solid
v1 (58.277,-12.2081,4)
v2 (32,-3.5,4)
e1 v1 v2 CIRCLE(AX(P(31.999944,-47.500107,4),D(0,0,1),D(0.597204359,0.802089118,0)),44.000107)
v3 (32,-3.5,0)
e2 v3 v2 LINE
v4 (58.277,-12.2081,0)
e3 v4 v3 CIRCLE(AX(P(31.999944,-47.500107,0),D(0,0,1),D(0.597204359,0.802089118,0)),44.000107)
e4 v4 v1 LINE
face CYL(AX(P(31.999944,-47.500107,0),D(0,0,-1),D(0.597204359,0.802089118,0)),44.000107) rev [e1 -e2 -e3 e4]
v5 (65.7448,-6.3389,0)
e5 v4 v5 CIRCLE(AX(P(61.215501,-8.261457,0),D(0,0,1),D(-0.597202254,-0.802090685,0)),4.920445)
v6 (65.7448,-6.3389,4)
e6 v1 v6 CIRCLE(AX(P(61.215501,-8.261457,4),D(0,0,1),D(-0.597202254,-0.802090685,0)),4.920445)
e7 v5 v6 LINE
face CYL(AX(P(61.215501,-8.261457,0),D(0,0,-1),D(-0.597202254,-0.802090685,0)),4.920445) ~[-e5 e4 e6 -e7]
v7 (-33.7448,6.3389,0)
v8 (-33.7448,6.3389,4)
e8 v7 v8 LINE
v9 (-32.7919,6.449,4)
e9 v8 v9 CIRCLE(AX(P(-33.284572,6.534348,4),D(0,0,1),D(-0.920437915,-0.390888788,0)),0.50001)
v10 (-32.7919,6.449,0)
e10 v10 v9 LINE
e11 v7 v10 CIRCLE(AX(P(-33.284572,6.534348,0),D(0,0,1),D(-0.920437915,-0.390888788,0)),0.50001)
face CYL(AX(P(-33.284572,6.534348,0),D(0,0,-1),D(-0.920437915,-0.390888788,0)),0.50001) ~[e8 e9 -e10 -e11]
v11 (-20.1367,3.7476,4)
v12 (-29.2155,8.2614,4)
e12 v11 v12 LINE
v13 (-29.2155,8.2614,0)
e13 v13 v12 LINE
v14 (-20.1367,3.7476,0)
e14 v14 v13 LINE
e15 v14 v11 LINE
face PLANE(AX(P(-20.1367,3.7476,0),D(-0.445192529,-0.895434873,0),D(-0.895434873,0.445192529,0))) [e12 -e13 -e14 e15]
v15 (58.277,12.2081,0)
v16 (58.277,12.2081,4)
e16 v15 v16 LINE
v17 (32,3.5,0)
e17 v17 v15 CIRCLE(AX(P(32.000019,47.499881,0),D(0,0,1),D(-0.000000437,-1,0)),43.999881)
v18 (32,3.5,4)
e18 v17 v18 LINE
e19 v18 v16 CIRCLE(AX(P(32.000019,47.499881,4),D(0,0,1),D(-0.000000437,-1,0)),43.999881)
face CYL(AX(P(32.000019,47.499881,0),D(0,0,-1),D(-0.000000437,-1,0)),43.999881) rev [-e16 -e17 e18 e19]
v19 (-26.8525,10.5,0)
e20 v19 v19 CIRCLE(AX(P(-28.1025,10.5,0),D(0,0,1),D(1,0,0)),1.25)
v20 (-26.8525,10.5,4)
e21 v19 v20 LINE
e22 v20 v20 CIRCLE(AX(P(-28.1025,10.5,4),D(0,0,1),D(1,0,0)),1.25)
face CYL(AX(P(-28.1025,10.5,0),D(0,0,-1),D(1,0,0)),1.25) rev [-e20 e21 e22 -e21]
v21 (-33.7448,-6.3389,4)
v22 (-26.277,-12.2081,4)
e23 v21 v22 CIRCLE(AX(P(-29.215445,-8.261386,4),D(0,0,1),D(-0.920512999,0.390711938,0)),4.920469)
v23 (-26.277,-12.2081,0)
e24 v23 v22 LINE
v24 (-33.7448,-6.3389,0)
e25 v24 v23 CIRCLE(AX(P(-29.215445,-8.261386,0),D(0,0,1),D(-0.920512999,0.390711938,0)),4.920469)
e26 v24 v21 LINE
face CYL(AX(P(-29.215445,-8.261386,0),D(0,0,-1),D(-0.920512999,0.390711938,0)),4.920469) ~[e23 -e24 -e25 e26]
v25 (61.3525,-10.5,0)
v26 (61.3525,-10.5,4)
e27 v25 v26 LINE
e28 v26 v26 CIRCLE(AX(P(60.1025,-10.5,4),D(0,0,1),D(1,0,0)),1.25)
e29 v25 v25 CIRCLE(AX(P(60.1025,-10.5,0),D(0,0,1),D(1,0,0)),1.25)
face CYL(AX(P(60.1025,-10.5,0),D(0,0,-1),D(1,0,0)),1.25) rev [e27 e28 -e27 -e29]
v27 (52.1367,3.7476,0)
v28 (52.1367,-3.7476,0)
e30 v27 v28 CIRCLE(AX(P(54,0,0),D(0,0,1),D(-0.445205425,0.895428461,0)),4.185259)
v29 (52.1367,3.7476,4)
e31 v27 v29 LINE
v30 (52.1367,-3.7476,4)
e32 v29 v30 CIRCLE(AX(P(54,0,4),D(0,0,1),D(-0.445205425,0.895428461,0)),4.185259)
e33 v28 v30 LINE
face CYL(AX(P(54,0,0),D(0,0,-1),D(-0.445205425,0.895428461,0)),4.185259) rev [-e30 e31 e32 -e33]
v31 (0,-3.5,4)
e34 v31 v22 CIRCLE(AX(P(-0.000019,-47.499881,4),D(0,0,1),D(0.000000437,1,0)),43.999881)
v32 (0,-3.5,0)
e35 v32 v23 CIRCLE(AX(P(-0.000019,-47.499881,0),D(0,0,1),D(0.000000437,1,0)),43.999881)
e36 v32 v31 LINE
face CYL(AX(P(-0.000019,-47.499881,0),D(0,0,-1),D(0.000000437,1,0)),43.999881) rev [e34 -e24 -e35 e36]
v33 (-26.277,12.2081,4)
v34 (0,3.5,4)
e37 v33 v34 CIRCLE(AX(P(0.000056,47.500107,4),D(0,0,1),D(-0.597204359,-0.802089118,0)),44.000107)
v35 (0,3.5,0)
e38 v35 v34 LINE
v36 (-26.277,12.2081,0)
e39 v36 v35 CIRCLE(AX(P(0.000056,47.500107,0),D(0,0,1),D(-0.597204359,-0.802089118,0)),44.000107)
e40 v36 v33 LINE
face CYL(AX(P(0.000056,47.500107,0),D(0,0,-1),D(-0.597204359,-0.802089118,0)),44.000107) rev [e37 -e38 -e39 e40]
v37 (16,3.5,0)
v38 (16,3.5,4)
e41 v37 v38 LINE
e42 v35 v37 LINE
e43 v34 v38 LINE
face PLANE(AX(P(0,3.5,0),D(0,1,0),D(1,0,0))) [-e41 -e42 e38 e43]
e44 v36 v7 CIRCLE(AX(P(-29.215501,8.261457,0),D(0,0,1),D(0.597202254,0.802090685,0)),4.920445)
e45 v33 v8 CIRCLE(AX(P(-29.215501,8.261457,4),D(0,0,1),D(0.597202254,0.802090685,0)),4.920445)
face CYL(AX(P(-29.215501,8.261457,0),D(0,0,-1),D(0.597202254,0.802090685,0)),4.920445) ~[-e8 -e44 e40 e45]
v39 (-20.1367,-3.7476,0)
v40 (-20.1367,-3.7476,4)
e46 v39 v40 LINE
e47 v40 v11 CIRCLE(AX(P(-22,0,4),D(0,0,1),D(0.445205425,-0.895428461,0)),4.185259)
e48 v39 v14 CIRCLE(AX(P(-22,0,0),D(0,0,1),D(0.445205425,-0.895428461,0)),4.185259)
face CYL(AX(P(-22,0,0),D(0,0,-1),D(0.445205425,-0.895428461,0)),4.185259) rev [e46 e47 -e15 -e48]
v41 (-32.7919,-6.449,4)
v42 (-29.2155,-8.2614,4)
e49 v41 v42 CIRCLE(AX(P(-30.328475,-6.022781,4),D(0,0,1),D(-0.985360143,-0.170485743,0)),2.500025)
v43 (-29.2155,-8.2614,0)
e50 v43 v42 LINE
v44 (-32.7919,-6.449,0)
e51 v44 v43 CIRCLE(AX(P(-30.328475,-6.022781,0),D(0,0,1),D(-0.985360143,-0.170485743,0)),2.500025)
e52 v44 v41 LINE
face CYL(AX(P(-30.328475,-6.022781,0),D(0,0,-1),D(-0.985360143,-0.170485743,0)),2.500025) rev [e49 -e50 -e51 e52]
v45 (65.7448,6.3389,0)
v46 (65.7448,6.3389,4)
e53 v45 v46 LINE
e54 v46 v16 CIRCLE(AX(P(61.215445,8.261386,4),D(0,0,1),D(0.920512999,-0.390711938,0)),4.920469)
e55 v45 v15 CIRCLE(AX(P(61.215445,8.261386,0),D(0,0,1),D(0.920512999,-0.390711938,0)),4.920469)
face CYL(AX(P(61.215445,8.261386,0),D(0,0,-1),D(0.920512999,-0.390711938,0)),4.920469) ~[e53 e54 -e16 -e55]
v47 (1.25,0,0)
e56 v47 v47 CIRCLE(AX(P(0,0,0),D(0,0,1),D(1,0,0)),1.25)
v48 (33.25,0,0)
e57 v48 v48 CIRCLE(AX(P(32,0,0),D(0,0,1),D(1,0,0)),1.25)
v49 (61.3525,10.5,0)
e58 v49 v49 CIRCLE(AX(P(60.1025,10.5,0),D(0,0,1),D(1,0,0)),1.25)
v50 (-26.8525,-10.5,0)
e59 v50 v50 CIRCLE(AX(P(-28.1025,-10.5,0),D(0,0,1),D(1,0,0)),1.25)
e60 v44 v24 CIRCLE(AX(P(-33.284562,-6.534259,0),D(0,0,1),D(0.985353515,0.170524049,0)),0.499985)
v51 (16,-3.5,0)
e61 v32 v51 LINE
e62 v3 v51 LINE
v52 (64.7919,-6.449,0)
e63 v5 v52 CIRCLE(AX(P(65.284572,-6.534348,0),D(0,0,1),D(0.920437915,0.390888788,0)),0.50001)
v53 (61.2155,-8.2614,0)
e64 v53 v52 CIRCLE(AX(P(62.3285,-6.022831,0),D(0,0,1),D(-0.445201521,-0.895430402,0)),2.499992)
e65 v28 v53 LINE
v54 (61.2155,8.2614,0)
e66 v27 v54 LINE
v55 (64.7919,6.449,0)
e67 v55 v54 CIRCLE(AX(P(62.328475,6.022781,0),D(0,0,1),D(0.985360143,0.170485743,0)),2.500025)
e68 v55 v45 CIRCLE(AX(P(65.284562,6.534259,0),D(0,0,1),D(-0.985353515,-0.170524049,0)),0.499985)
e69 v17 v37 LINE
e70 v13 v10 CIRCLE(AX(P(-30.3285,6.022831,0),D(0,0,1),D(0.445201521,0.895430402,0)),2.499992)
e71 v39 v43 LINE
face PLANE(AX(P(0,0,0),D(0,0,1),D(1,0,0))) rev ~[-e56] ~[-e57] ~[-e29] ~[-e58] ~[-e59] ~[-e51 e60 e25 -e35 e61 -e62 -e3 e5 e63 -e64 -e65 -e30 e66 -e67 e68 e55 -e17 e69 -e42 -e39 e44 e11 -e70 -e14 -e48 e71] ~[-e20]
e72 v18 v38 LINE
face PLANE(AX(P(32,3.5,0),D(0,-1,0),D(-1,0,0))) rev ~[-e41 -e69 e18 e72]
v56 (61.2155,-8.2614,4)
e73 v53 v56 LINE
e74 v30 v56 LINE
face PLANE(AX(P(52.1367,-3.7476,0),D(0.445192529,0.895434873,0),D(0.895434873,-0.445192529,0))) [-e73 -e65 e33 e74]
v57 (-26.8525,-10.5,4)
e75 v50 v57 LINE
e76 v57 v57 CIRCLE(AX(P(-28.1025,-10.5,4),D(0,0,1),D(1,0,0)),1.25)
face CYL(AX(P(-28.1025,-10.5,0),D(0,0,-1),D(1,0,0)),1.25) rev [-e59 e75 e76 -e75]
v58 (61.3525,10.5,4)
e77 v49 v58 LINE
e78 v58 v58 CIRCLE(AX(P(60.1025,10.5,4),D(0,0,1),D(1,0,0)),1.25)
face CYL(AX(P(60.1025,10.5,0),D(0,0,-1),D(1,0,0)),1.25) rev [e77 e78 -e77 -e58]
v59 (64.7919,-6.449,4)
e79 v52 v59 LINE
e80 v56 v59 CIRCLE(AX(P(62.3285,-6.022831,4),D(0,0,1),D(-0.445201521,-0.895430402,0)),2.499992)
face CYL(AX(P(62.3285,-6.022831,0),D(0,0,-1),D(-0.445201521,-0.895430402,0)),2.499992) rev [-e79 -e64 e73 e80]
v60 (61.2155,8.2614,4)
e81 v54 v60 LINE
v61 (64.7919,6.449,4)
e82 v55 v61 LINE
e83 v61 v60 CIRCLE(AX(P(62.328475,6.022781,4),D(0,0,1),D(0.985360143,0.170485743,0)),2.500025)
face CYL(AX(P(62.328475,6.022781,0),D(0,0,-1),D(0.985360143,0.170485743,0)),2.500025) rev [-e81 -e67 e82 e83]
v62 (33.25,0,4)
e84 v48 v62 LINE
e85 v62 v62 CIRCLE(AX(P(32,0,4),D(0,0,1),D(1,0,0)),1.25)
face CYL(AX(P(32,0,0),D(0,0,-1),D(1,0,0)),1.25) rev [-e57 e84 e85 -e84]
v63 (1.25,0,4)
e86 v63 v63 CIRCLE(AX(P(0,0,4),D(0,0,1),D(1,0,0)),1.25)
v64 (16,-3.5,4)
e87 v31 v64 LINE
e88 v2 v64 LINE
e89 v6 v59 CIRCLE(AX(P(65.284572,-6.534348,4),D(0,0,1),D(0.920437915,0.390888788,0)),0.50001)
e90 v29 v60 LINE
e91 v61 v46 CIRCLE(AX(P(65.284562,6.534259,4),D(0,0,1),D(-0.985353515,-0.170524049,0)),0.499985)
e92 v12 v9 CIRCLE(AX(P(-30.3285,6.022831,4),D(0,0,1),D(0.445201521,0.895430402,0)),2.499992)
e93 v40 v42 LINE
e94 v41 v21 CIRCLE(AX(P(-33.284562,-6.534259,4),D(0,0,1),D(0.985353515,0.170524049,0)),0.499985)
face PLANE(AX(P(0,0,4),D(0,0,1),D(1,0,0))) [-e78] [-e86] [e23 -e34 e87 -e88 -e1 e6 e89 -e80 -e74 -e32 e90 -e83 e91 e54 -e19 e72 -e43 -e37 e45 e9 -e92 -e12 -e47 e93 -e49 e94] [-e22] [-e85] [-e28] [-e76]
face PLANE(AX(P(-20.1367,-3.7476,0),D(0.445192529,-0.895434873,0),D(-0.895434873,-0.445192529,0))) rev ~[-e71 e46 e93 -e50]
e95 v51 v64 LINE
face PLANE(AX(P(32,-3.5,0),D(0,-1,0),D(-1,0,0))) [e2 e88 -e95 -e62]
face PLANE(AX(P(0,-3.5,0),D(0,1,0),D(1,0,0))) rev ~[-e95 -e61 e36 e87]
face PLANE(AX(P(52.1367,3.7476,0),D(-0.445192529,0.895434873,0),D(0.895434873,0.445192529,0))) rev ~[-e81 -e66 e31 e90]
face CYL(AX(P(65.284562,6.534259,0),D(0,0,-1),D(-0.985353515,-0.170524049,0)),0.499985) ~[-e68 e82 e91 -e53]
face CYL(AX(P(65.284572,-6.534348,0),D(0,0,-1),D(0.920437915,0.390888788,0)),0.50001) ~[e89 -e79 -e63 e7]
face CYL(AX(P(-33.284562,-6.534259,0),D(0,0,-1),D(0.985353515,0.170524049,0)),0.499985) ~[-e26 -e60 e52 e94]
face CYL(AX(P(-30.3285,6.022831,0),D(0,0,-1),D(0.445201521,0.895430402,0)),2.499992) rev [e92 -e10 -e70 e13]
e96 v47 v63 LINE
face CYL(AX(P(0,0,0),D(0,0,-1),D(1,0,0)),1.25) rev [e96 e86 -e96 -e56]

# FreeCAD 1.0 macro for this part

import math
import FreeCAD as App
import Part
import Sketcher

V = App.Vector

doc = App.newDocument("Part")
params = doc.addObject("Spreadsheet::Sheet", "Params")
for row, (alias, value) in enumerate([
    ("sketch1_radius", "44 mm"),
    ("sketch1_diameter", "2.5 mm"),
    ("sketch1_radius2", "0.5 mm"),
    ("sketch1_radius3", "2.5 mm"),
    ("sketch1_width", "32 mm"),
    ("pad1_length", "4 mm"),
], start=1):
    params.set(f"A{row}", alias)
    params.set(f"B{row}", "=" + value)
    params.setAlias(f"B{row}", alias)

body = doc.addObject("PartDesign::Body", "Body")

# Sketch on XY plane
sketch1 = body.newObject("Sketcher::SketchObject", "Sketch")
sketch1.AttachmentSupport = (doc.getObject("XY_Plane"), [""])
sketch1.MapMode = "FlatFace"
sketch1.addGeometry([
    Part.LineSegment(V(32, 3.5, 0), V(0, 3.5, 0)),  # 0
    Part.ArcOfCircle(Part.Circle(V(0, 47.5, 0), V(0, 0, 1), 44), math.radians(-127), math.radians(-90)),  # 1
    Part.ArcOfCircle(Part.Circle(V(-29.22, 8.26, 0), V(0, 0, 1), 4.92), math.radians(53), math.radians(203)),  # 2
    Part.ArcOfCircle(Part.Circle(V(-33.28, 6.53, 0), V(0, 0, 1), 0.5), math.radians(-157), math.radians(-10)),  # 3
    Part.ArcOfCircle(Part.Circle(V(-30.33, 6.02, 0), V(0, 0, 1), 2.5), math.radians(64), math.radians(170)),  # 4
    Part.LineSegment(V(-29.22, 8.26, 0), V(-20.14, 3.75, 0)),  # 5
    Part.ArcOfCircle(Part.Circle(V(-22, 0, 0), V(0, 0, 1), 4.19), math.radians(-64), math.radians(64)),  # 6
    Part.LineSegment(V(-20.14, -3.75, 0), V(-29.22, -8.26, 0)),  # 7
    Part.ArcOfCircle(Part.Circle(V(-30.33, -6.02, 0), V(0, 0, 1), 2.5), math.radians(-170), math.radians(-64)),  # 8
    Part.ArcOfCircle(Part.Circle(V(-33.28, -6.53, 0), V(0, 0, 1), 0.5), math.radians(10), math.radians(157)),  # 9
    Part.ArcOfCircle(Part.Circle(V(-29.22, -8.26, 0), V(0, 0, 1), 4.92), math.radians(157), math.radians(307)),  # 10
    Part.ArcOfCircle(Part.Circle(V(0, -47.5, 0), V(0, 0, 1), 44), math.radians(90), math.radians(127)),  # 11
    Part.LineSegment(V(0, -3.5, 0), V(32, -3.5, 0)),  # 12
    Part.ArcOfCircle(Part.Circle(V(32, -47.5, 0), V(0, 0, 1), 44), math.radians(53), math.radians(90)),  # 13
    Part.ArcOfCircle(Part.Circle(V(61.22, -8.26, 0), V(0, 0, 1), 4.92), math.radians(-127), math.radians(23)),  # 14
    Part.ArcOfCircle(Part.Circle(V(65.28, -6.53, 0), V(0, 0, 1), 0.5), math.radians(23), math.radians(170)),  # 15
    Part.ArcOfCircle(Part.Circle(V(62.33, -6.02, 0), V(0, 0, 1), 2.5), math.radians(-116), math.radians(-10)),  # 16
    Part.LineSegment(V(61.22, -8.26, 0), V(52.14, -3.75, 0)),  # 17
    Part.ArcOfCircle(Part.Circle(V(54, 0, 0), V(0, 0, 1), 4.19), math.radians(116), math.radians(244)),  # 18
    Part.LineSegment(V(52.14, 3.75, 0), V(61.22, 8.26, 0)),  # 19
    Part.ArcOfCircle(Part.Circle(V(62.33, 6.02, 0), V(0, 0, 1), 2.5), math.radians(10), math.radians(116)),  # 20
    Part.ArcOfCircle(Part.Circle(V(65.28, 6.53, 0), V(0, 0, 1), 0.5), math.radians(-170), math.radians(-23)),  # 21
    Part.ArcOfCircle(Part.Circle(V(61.22, 8.26, 0), V(0, 0, 1), 4.92), math.radians(-23), math.radians(127)),  # 22
    Part.ArcOfCircle(Part.Circle(V(32, 47.5, 0), V(0, 0, 1), 44), math.radians(-90), math.radians(-53)),  # 23
    Part.Circle(V(-28.1, -10.5, 0), V(0, 0, 1), 1.25),  # 24
    Part.Circle(V(0, 0, 0), V(0, 0, 1), 1.25),  # 25
    Part.Circle(V(60.1, -10.5, 0), V(0, 0, 1), 1.25),  # 26
    Part.Circle(V(32, 0, 0), V(0, 0, 1), 1.25),  # 27
    Part.Circle(V(-28.1, 10.5, 0), V(0, 0, 1), 1.25),  # 28
    Part.Circle(V(60.1, 10.5, 0), V(0, 0, 1), 1.25),  # 29
], False)
sketch1.addConstraint([
    Sketcher.Constraint("Tangent", 0, 2, 1, 2),
    Sketcher.Constraint("Tangent", 1, 1, 2, 1),
    Sketcher.Constraint("Tangent", 2, 2, 3, 1),
    Sketcher.Constraint("Tangent", 3, 2, 4, 2),
    Sketcher.Constraint("Tangent", 4, 1, 5, 1),
    Sketcher.Constraint("Tangent", 5, 2, 6, 2),
    Sketcher.Constraint("Tangent", 6, 1, 7, 1),
    Sketcher.Constraint("Tangent", 7, 2, 8, 2),
    Sketcher.Constraint("Tangent", 8, 1, 9, 1),
    Sketcher.Constraint("Tangent", 9, 2, 10, 1),
    Sketcher.Constraint("Tangent", 10, 2, 11, 2),
    Sketcher.Constraint("Tangent", 11, 1, 12, 1),
    Sketcher.Constraint("Tangent", 12, 2, 13, 2),
    Sketcher.Constraint("Tangent", 13, 1, 14, 1),
    Sketcher.Constraint("Tangent", 14, 2, 15, 1),
    Sketcher.Constraint("Tangent", 15, 2, 16, 2),
    Sketcher.Constraint("Tangent", 16, 1, 17, 1),
    Sketcher.Constraint("Tangent", 17, 2, 18, 2),
    Sketcher.Constraint("Tangent", 18, 1, 19, 1),
    Sketcher.Constraint("Tangent", 19, 2, 20, 2),
    Sketcher.Constraint("Tangent", 20, 1, 21, 1),
    Sketcher.Constraint("Tangent", 21, 2, 22, 1),
    Sketcher.Constraint("Tangent", 22, 2, 23, 2),
    Sketcher.Constraint("Tangent", 23, 1, 0, 1),
    Sketcher.Constraint("Horizontal", 0),
    Sketcher.Constraint("Horizontal", 12),
    Sketcher.Constraint("Coincident", 25, 3, -1, 1),
    Sketcher.Constraint("Coincident", 4, 1, 2, 3),
    Sketcher.Constraint("Coincident", 7, 2, 10, 3),
    Sketcher.Constraint("Coincident", 16, 1, 14, 3),
    Sketcher.Constraint("Coincident", 19, 2, 22, 3),
    Sketcher.Constraint("Equal", 4, 8),
    Sketcher.Constraint("Equal", 3, 9),
    Sketcher.Constraint("Equal", 2, 10),
    Sketcher.Constraint("Equal", 1, 11),
    Sketcher.Constraint("Equal", 11, 13),
    Sketcher.Constraint("Equal", 10, 14),
    Sketcher.Constraint("Equal", 9, 15),
    Sketcher.Constraint("Equal", 8, 16),
    Sketcher.Constraint("Equal", 6, 18),
    Sketcher.Constraint("Equal", 16, 20),
    Sketcher.Constraint("Equal", 15, 21),
    Sketcher.Constraint("Equal", 14, 22),
    Sketcher.Constraint("Equal", 13, 23),
    Sketcher.Constraint("Equal", 24, 25),
    Sketcher.Constraint("Equal", 25, 26),
    Sketcher.Constraint("Equal", 26, 27),
    Sketcher.Constraint("Equal", 27, 28),
    Sketcher.Constraint("Equal", 28, 29),
    Sketcher.Constraint("Symmetric", 1, 3, 11, 3, -1, 1),
    Sketcher.Constraint("Symmetric", 4, 3, 8, 3, -1),
    Sketcher.Constraint("Symmetric", 16, 3, 20, 3, -1),
    Sketcher.Constraint("Symmetric", 24, 3, 28, 3, -1),
    Sketcher.Constraint("Symmetric", 26, 3, 29, 3, -1),
    Sketcher.Constraint("PointOnObject", 1, 3, -2),
    Sketcher.Constraint("PointOnObject", 18, 3, -1),
    Sketcher.Constraint("PointOnObject", 27, 3, -1),
    Sketcher.Constraint("Parallel", 5, 17),
    Sketcher.Constraint("Horizontal", 10, 3, 14, 3),
    Sketcher.Constraint("Horizontal", 24, 3, 26, 3),
    Sketcher.Constraint("Vertical", 23, 3, 27, 3),
    Sketcher.Constraint("Radius", 1, 44.0),
    Sketcher.Constraint("Diameter", 24, 2.5),
    Sketcher.Constraint("Radius", 3, 0.5),
    Sketcher.Constraint("Radius", 4, 2.5),
    Sketcher.Constraint("DistanceX", 6, 3, -1, 1, 22.0),
    Sketcher.Constraint("DistanceY", 24, 3, -1, 1, 10.5),
    Sketcher.Constraint("DistanceY", -1, 1, 0, 2, 3.5),
    Sketcher.Constraint("DistanceX", 0, 2, 0, 1, 32.0),
    Sketcher.Constraint("Radius", 2, 4.9205),
    Sketcher.Constraint("Radius", 6, 4.1853),
    Sketcher.Constraint("Distance", 5, 10.139),
    Sketcher.Constraint("DistanceX", 10, 3, 24, 3, 1.113),
    Sketcher.Constraint("DistanceX", 26, 3, 14, 3, 1.113),
])
sketch1.setExpression("Constraints[61]", "Params.sketch1_radius")
sketch1.setExpression("Constraints[62]", "Params.sketch1_diameter")
sketch1.setExpression("Constraints[63]", "Params.sketch1_radius2")
sketch1.setExpression("Constraints[64]", "Params.sketch1_radius3")
sketch1.setExpression("Constraints[68]", "Params.sketch1_width")
pad1 = body.newObject("PartDesign::Pad", "Pad")
pad1.Profile = sketch1
pad1.setExpression("Length", "Params.pad1_length")

doc.recompute()
